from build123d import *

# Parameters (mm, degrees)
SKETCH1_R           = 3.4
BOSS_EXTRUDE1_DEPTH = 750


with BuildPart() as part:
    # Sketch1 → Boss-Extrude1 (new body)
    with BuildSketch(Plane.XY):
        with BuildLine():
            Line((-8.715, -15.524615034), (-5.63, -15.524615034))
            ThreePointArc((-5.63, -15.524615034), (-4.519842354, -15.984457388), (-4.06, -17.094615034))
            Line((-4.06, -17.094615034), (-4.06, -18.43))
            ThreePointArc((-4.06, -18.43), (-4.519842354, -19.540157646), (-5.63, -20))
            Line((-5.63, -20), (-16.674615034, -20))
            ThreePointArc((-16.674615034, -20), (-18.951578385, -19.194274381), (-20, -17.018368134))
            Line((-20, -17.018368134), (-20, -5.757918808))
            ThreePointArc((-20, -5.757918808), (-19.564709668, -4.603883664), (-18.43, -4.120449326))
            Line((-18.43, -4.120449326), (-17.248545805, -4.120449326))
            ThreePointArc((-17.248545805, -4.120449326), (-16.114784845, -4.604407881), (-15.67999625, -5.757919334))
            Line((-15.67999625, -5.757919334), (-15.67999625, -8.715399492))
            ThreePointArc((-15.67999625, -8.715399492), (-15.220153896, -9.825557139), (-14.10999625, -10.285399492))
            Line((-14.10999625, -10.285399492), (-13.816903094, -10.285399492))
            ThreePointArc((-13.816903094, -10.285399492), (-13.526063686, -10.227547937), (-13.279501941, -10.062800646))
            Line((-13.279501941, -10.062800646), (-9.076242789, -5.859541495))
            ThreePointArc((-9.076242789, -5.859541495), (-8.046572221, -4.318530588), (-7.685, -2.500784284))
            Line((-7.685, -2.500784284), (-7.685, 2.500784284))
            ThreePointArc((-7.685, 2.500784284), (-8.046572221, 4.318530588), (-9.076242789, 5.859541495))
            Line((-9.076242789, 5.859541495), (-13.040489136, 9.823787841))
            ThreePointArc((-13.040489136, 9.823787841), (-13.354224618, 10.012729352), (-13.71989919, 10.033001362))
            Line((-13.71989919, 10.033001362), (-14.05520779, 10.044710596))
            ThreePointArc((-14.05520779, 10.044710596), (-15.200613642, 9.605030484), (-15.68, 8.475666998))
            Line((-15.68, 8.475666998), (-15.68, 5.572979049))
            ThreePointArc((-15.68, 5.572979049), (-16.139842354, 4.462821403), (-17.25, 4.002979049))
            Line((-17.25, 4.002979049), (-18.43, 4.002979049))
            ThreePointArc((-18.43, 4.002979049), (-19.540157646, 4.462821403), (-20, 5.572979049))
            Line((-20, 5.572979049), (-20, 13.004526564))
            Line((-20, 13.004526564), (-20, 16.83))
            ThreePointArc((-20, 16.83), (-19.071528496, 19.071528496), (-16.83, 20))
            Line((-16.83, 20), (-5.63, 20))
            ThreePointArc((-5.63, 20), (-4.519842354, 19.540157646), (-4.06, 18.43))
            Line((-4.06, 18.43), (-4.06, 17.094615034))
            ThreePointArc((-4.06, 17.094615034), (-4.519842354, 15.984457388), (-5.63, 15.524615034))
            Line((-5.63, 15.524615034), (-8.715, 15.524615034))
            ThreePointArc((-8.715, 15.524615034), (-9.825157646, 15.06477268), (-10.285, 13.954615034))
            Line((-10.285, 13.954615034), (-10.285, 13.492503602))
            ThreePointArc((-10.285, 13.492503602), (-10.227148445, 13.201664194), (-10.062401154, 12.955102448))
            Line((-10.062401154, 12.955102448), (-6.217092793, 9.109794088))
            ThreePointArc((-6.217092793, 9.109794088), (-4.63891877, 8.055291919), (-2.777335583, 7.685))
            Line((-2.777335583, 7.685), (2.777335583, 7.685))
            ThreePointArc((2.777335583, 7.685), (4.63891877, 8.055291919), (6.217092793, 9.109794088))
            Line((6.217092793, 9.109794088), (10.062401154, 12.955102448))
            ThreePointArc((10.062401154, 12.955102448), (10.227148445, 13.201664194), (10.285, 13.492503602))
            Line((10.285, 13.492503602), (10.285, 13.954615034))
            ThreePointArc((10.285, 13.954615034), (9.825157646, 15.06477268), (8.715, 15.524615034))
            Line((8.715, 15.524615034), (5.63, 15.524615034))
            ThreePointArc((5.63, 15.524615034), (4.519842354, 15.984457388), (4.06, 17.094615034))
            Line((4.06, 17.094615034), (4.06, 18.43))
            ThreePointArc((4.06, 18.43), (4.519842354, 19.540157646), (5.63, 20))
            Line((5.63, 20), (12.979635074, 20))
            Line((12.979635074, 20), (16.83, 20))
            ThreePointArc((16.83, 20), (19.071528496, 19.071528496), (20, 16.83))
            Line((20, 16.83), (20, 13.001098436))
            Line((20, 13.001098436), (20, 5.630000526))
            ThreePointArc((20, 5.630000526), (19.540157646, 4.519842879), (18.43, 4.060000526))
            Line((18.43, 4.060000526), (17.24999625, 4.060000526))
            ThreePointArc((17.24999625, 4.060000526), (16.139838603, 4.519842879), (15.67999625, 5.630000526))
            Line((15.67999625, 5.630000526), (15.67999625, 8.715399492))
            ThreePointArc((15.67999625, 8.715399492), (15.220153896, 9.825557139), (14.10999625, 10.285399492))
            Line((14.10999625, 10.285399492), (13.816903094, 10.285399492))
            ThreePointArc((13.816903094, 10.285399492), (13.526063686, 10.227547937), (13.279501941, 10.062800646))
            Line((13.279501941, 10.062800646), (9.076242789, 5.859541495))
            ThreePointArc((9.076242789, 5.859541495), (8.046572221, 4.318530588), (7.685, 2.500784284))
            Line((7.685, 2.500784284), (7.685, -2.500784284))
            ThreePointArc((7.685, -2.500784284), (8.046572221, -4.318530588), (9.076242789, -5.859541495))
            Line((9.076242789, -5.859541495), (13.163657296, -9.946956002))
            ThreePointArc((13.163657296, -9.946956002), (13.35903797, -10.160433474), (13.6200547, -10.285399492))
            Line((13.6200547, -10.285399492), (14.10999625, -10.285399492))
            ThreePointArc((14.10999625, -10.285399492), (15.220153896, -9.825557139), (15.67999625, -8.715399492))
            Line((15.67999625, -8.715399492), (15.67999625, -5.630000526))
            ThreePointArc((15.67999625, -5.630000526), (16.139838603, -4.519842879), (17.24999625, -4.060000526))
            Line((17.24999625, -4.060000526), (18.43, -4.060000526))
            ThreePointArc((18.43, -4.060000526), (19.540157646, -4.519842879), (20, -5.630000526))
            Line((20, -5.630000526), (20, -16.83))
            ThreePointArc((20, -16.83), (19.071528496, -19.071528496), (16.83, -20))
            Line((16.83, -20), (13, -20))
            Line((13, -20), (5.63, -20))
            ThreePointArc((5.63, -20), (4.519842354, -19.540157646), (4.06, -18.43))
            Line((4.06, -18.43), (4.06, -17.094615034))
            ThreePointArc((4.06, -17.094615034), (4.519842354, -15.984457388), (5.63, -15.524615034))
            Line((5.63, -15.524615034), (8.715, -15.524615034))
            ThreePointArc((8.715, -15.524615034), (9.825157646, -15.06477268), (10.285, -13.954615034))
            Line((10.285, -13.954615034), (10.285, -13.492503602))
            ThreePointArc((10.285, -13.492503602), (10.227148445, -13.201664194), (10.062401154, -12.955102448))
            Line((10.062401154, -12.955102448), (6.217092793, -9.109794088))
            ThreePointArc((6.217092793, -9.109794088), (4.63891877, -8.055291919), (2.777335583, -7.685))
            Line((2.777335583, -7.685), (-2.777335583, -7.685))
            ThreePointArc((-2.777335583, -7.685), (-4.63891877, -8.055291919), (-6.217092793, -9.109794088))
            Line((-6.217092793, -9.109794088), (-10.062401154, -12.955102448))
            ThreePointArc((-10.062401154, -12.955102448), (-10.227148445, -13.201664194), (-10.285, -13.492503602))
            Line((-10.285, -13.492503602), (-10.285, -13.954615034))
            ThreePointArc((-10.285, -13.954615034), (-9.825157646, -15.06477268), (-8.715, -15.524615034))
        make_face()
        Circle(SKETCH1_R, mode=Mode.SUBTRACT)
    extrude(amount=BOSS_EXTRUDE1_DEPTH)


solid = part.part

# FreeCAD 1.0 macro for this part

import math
import FreeCAD as App
import Part
import Sketcher

V = App.Vector
Q = App.Units.Quantity

doc = App.newDocument("Part")
body = doc.addObject("PartDesign::Body", "Body")

# Sketch on XY plane
sketch1 = doc.addObject("Sketcher::SketchObject", "Sketch")
body.addObject(sketch1)
sketch1.AttachmentSupport = (doc.XY_Plane, [""])
sketch1.MapMode = "FlatFace"
sketch1.addGeometry([
    Part.LineSegment(V(-5.63, -15.52, 0), V(-8.71, -15.52, 0)),  # 0
    Part.ArcOfCircle(Part.Circle(V(-8.71, -13.95, 0), V(0, 0, 1), 1.57), math.radians(-180), math.radians(-90)),  # 1
    Part.LineSegment(V(-10.29, -13.95, 0), V(-10.29, -13.49, 0)),  # 2
    Part.ArcOfCircle(Part.Circle(V(-9.52, -13.49, 0), V(0, 0, 1), 0.76), math.radians(135), math.radians(180)),  # 3
    Part.LineSegment(V(-10.06, -12.96, 0), V(-6.22, -9.11, 0)),  # 4
    Part.ArcOfCircle(Part.Circle(V(-2.78, -12.55, 0), V(0, 0, 1), 4.86), math.radians(90), math.radians(135)),  # 5
    Part.LineSegment(V(-2.78, -7.68, 0), V(2.78, -7.68, 0)),  # 6
    Part.ArcOfCircle(Part.Circle(V(2.78, -12.55, 0), V(0, 0, 1), 4.86), math.radians(45), math.radians(90)),  # 7
    Part.LineSegment(V(6.22, -9.11, 0), V(10.06, -12.96, 0)),  # 8
    Part.ArcOfCircle(Part.Circle(V(9.52, -13.49, 0), V(0, 0, 1), 0.76), math.radians(0), math.radians(45)),  # 9
    Part.LineSegment(V(10.29, -13.49, 0), V(10.29, -13.95, 0)),  # 10
    Part.ArcOfCircle(Part.Circle(V(8.71, -13.95, 0), V(0, 0, 1), 1.57), math.radians(-90), math.radians(0)),  # 11
    Part.LineSegment(V(8.71, -15.52, 0), V(5.63, -15.52, 0)),  # 12
    Part.ArcOfCircle(Part.Circle(V(5.63, -17.09, 0), V(0, 0, 1), 1.57), math.radians(90), math.radians(180)),  # 13
    Part.LineSegment(V(4.06, -17.09, 0), V(4.06, -18.43, 0)),  # 14
    Part.ArcOfCircle(Part.Circle(V(5.63, -18.43, 0), V(0, 0, 1), 1.57), math.radians(-180), math.radians(-90)),  # 15
    Part.LineSegment(V(5.63, -20, 0), V(16.83, -20, 0)),  # 16
    Part.ArcOfCircle(Part.Circle(V(16.83, -16.83, 0), V(0, 0, 1), 3.17), math.radians(-90), math.radians(0)),  # 17
    Part.LineSegment(V(20, -16.83, 0), V(20, -5.63, 0)),  # 18
    Part.ArcOfCircle(Part.Circle(V(18.43, -5.63, 0), V(0, 0, 1), 1.57), math.radians(0), math.radians(90)),  # 19
    Part.LineSegment(V(18.43, -4.06, 0), V(17.25, -4.06, 0)),  # 20
    Part.ArcOfCircle(Part.Circle(V(17.25, -5.63, 0), V(0, 0, 1), 1.57), math.radians(90), math.radians(180)),  # 21
    Part.LineSegment(V(15.68, -5.63, 0), V(15.68, -8.72, 0)),  # 22
    Part.ArcOfCircle(Part.Circle(V(14.11, -8.72, 0), V(0, 0, 1), 1.57), math.radians(-90), math.radians(0)),  # 23
    Part.LineSegment(V(14.11, -10.29, 0), V(13.62, -10.29, 0)),  # 24
    Part.ArcOfCircle(Part.Circle(V(13.81, -9.55, 0), V(0, 0, 1), 0.76), math.radians(-149), math.radians(-105)),  # 25
    Part.LineSegment(V(13.16, -9.95, 0), V(9.08, -5.86, 0)),  # 26
    Part.ArcOfCircle(Part.Circle(V(12.44, -2.5, 0), V(0, 0, 1), 4.75), math.radians(-180), math.radians(-135)),  # 27
    Part.LineSegment(V(7.68, -2.5, 0), V(7.68, 2.5, 0)),  # 28
    Part.ArcOfCircle(Part.Circle(V(12.44, 2.5, 0), V(0, 0, 1), 4.75), math.radians(135), math.radians(180)),  # 29
    Part.LineSegment(V(9.08, 5.86, 0), V(13.28, 10.06, 0)),  # 30
    Part.ArcOfCircle(Part.Circle(V(13.82, 9.53, 0), V(0, 0, 1), 0.76), math.radians(90), math.radians(135)),  # 31
    Part.LineSegment(V(13.82, 10.29, 0), V(14.11, 10.29, 0)),  # 32
    Part.ArcOfCircle(Part.Circle(V(14.11, 8.72, 0), V(0, 0, 1), 1.57), math.radians(0), math.radians(90)),  # 33
    Part.LineSegment(V(15.68, 8.72, 0), V(15.68, 5.63, 0)),  # 34
    Part.ArcOfCircle(Part.Circle(V(17.25, 5.63, 0), V(0, 0, 1), 1.57), math.radians(180), math.radians(270)),  # 35
    Part.LineSegment(V(17.25, 4.06, 0), V(18.43, 4.06, 0)),  # 36
    Part.ArcOfCircle(Part.Circle(V(18.43, 5.63, 0), V(0, 0, 1), 1.57), math.radians(-90), math.radians(0)),  # 37
    Part.LineSegment(V(20, 5.63, 0), V(20, 16.83, 0)),  # 38
    Part.ArcOfCircle(Part.Circle(V(16.83, 16.83, 0), V(0, 0, 1), 3.17), math.radians(0), math.radians(90)),  # 39
    Part.LineSegment(V(16.83, 20, 0), V(5.63, 20, 0)),  # 40
    Part.ArcOfCircle(Part.Circle(V(5.63, 18.43, 0), V(0, 0, 1), 1.57), math.radians(90), math.radians(180)),  # 41
    Part.LineSegment(V(4.06, 18.43, 0), V(4.06, 17.09, 0)),  # 42
    Part.ArcOfCircle(Part.Circle(V(5.63, 17.09, 0), V(0, 0, 1), 1.57), math.radians(-180), math.radians(-90)),  # 43
    Part.LineSegment(V(5.63, 15.52, 0), V(8.71, 15.52, 0)),  # 44
    Part.ArcOfCircle(Part.Circle(V(8.71, 13.95, 0), V(0, 0, 1), 1.57), math.radians(0), math.radians(90)),  # 45
    Part.LineSegment(V(10.29, 13.95, 0), V(10.29, 13.49, 0)),  # 46
    Part.ArcOfCircle(Part.Circle(V(9.52, 13.49, 0), V(0, 0, 1), 0.76), math.radians(-45), math.radians(0)),  # 47
    Part.LineSegment(V(10.06, 12.96, 0), V(6.22, 9.11, 0)),  # 48
    Part.ArcOfCircle(Part.Circle(V(2.78, 12.55, 0), V(0, 0, 1), 4.86), math.radians(-90), math.radians(-45)),  # 49
    Part.LineSegment(V(2.78, 7.68, 0), V(-2.78, 7.68, 0)),  # 50
    Part.ArcOfCircle(Part.Circle(V(-2.78, 12.55, 0), V(0, 0, 1), 4.86), math.radians(-135), math.radians(-90)),  # 51
    Part.LineSegment(V(-6.22, 9.11, 0), V(-10.06, 12.96, 0)),  # 52
    Part.ArcOfCircle(Part.Circle(V(-9.52, 13.49, 0), V(0, 0, 1), 0.76), math.radians(180), math.radians(225)),  # 53
    Part.LineSegment(V(-10.29, 13.49, 0), V(-10.29, 13.95, 0)),  # 54
    Part.ArcOfCircle(Part.Circle(V(-8.71, 13.95, 0), V(0, 0, 1), 1.57), math.radians(90), math.radians(180)),  # 55
    Part.LineSegment(V(-8.71, 15.52, 0), V(-5.63, 15.52, 0)),  # 56
    Part.ArcOfCircle(Part.Circle(V(-5.63, 17.09, 0), V(0, 0, 1), 1.57), math.radians(-90), math.radians(0)),  # 57
    Part.LineSegment(V(-4.06, 17.09, 0), V(-4.06, 18.43, 0)),  # 58
    Part.ArcOfCircle(Part.Circle(V(-5.63, 18.43, 0), V(0, 0, 1), 1.57), math.radians(0), math.radians(90)),  # 59
    Part.LineSegment(V(-5.63, 20, 0), V(-16.83, 20, 0)),  # 60
    Part.ArcOfCircle(Part.Circle(V(-16.83, 16.83, 0), V(0, 0, 1), 3.17), math.radians(90), math.radians(180)),  # 61
    Part.LineSegment(V(-20, 16.83, 0), V(-20, 5.57, 0)),  # 62
    Part.ArcOfCircle(Part.Circle(V(-18.43, 5.57, 0), V(0, 0, 1), 1.57), math.radians(-180), math.radians(-90)),  # 63
    Part.LineSegment(V(-18.43, 4, 0), V(-17.25, 4, 0)),  # 64
    Part.ArcOfCircle(Part.Circle(V(-17.25, 5.57, 0), V(0, 0, 1), 1.57), math.radians(-90), math.radians(0)),  # 65
    Part.LineSegment(V(-15.68, 5.57, 0), V(-15.68, 8.48, 0)),  # 66
    Part.ArcOfCircle(Part.Circle(V(-14.11, 8.48, 0), V(0, 0, 1), 1.57), math.radians(88), math.radians(180)),  # 67
    Part.LineSegment(V(-14.06, 10.04, 0), V(-13.72, 10.03, 0)),  # 68
    Part.ArcOfCircle(Part.Circle(V(-13.58, 9.29, 0), V(0, 0, 1), 0.76), math.radians(45), math.radians(101)),  # 69
    Part.LineSegment(V(-13.04, 9.82, 0), V(-9.08, 5.86, 0)),  # 70
    Part.ArcOfCircle(Part.Circle(V(-12.44, 2.5, 0), V(0, 0, 1), 4.75), math.radians(0), math.radians(45)),  # 71
    Part.LineSegment(V(-7.68, 2.5, 0), V(-7.68, -2.5, 0)),  # 72
    Part.ArcOfCircle(Part.Circle(V(-12.44, -2.5, 0), V(0, 0, 1), 4.75), math.radians(-45), math.radians(0)),  # 73
    Part.LineSegment(V(-9.08, -5.86, 0), V(-13.28, -10.06, 0)),  # 74
    Part.ArcOfCircle(Part.Circle(V(-13.82, -9.53, 0), V(0, 0, 1), 0.76), math.radians(-90), math.radians(-45)),  # 75
    Part.LineSegment(V(-13.82, -10.29, 0), V(-14.11, -10.29, 0)),  # 76
    Part.ArcOfCircle(Part.Circle(V(-14.11, -8.72, 0), V(0, 0, 1), 1.57), math.radians(180), math.radians(270)),  # 77
    Part.LineSegment(V(-15.68, -8.72, 0), V(-15.68, -5.76, 0)),  # 78
    Part.ArcOfCircle(Part.Circle(V(-17.25, -5.69, 0), V(0, 0, 1), 1.57), math.radians(-2), math.radians(90)),  # 79
    Part.LineSegment(V(-17.25, -4.12, 0), V(-18.43, -4.12, 0)),  # 80
    Part.ArcOfCircle(Part.Circle(V(-18.43, -5.69, 0), V(0, 0, 1), 1.57), math.radians(90), math.radians(182)),  # 81
    Part.LineSegment(V(-20, -5.76, 0), V(-20, -17.02, 0)),  # 82
    Part.ArcOfCircle(Part.Circle(V(-16.84, -16.83, 0), V(0, 0, 1), 3.17), math.radians(-177), math.radians(-87)),  # 83
    Part.LineSegment(V(-16.67, -20, 0), V(-5.63, -20, 0)),  # 84
    Part.ArcOfCircle(Part.Circle(V(-5.63, -18.43, 0), V(0, 0, 1), 1.57), math.radians(-90), math.radians(0)),  # 85
    Part.LineSegment(V(-4.06, -18.43, 0), V(-4.06, -17.09, 0)),  # 86
    Part.ArcOfCircle(Part.Circle(V(-5.63, -17.09, 0), V(0, 0, 1), 1.57), math.radians(0), math.radians(90)),  # 87
    Part.Circle(V(0, 0, 0), V(0, 0, 1), 3.4),  # 88
], False)
sketch1.addConstraint([
    Sketcher.Constraint("Tangent", 0, 2, 1, 2),
    Sketcher.Constraint("Tangent", 1, 1, 2, 1),
    Sketcher.Constraint("Tangent", 2, 2, 3, 2),
    Sketcher.Constraint("Tangent", 3, 1, 4, 1),
    Sketcher.Constraint("Tangent", 4, 2, 5, 2),
    Sketcher.Constraint("Tangent", 5, 1, 6, 1),
    Sketcher.Constraint("Tangent", 6, 2, 7, 2),
    Sketcher.Constraint("Tangent", 7, 1, 8, 1),
    Sketcher.Constraint("Tangent", 8, 2, 9, 2),
    Sketcher.Constraint("Tangent", 9, 1, 10, 1),
    Sketcher.Constraint("Tangent", 10, 2, 11, 2),
    Sketcher.Constraint("Tangent", 11, 1, 12, 1),
    Sketcher.Constraint("Tangent", 12, 2, 13, 1),
    Sketcher.Constraint("Tangent", 13, 2, 14, 1),
    Sketcher.Constraint("Tangent", 14, 2, 15, 1),
    Sketcher.Constraint("Tangent", 15, 2, 16, 1),
    Sketcher.Constraint("Tangent", 16, 2, 17, 1),
    Sketcher.Constraint("Tangent", 17, 2, 18, 1),
    Sketcher.Constraint("Tangent", 18, 2, 19, 1),
    Sketcher.Constraint("Tangent", 19, 2, 20, 1),
    Sketcher.Constraint("Tangent", 20, 2, 21, 1),
    Sketcher.Constraint("Tangent", 21, 2, 22, 1),
    Sketcher.Constraint("Tangent", 22, 2, 23, 2),
    Sketcher.Constraint("Tangent", 23, 1, 24, 1),
    Sketcher.Constraint("Coincident", 24, 2, 25, 2),
    Sketcher.Constraint("Coincident", 25, 1, 26, 1),
    Sketcher.Constraint("Tangent", 26, 2, 27, 2),
    Sketcher.Constraint("Tangent", 27, 1, 28, 1),
    Sketcher.Constraint("Tangent", 28, 2, 29, 2),
    Sketcher.Constraint("Tangent", 29, 1, 30, 1),
    Sketcher.Constraint("Tangent", 30, 2, 31, 2),
    Sketcher.Constraint("Tangent", 31, 1, 32, 1),
    Sketcher.Constraint("Tangent", 32, 2, 33, 2),
    Sketcher.Constraint("Tangent", 33, 1, 34, 1),
    Sketcher.Constraint("Tangent", 34, 2, 35, 1),
    Sketcher.Constraint("Tangent", 35, 2, 36, 1),
    Sketcher.Constraint("Tangent", 36, 2, 37, 1),
    Sketcher.Constraint("Tangent", 37, 2, 38, 1),
    Sketcher.Constraint("Tangent", 38, 2, 39, 1),
    Sketcher.Constraint("Tangent", 39, 2, 40, 1),
    Sketcher.Constraint("Tangent", 40, 2, 41, 1),
    Sketcher.Constraint("Tangent", 41, 2, 42, 1),
    Sketcher.Constraint("Tangent", 42, 2, 43, 1),
    Sketcher.Constraint("Tangent", 43, 2, 44, 1),
    Sketcher.Constraint("Tangent", 44, 2, 45, 2),
    Sketcher.Constraint("Tangent", 45, 1, 46, 1),
    Sketcher.Constraint("Tangent", 46, 2, 47, 2),
    Sketcher.Constraint("Tangent", 47, 1, 48, 1),
    Sketcher.Constraint("Tangent", 48, 2, 49, 2),
    Sketcher.Constraint("Tangent", 49, 1, 50, 1),
    Sketcher.Constraint("Tangent", 50, 2, 51, 2),
    Sketcher.Constraint("Tangent", 51, 1, 52, 1),
    Sketcher.Constraint("Tangent", 52, 2, 53, 2),
    Sketcher.Constraint("Tangent", 53, 1, 54, 1),
    Sketcher.Constraint("Tangent", 54, 2, 55, 2),
    Sketcher.Constraint("Tangent", 55, 1, 56, 1),
    Sketcher.Constraint("Tangent", 56, 2, 57, 1),
    Sketcher.Constraint("Tangent", 57, 2, 58, 1),
    Sketcher.Constraint("Tangent", 58, 2, 59, 1),
    Sketcher.Constraint("Tangent", 59, 2, 60, 1),
    Sketcher.Constraint("Tangent", 60, 2, 61, 1),
    Sketcher.Constraint("Tangent", 61, 2, 62, 1),
    Sketcher.Constraint("Tangent", 62, 2, 63, 1),
    Sketcher.Constraint("Tangent", 63, 2, 64, 1),
    Sketcher.Constraint("Tangent", 64, 2, 65, 1),
    Sketcher.Constraint("Tangent", 65, 2, 66, 1),
    Sketcher.Constraint("Tangent", 66, 2, 67, 2),
    Sketcher.Constraint("Tangent", 67, 1, 68, 1),
    Sketcher.Constraint("Coincident", 68, 2, 69, 2),
    Sketcher.Constraint("Tangent", 69, 1, 70, 1),
    Sketcher.Constraint("Tangent", 70, 2, 71, 2),
    Sketcher.Constraint("Tangent", 71, 1, 72, 1),
    Sketcher.Constraint("Tangent", 72, 2, 73, 2),
    Sketcher.Constraint("Tangent", 73, 1, 74, 1),
    Sketcher.Constraint("Tangent", 74, 2, 75, 2),
    Sketcher.Constraint("Tangent", 75, 1, 76, 1),
    Sketcher.Constraint("Tangent", 76, 2, 77, 2),
    Sketcher.Constraint("Tangent", 77, 1, 78, 1),
    Sketcher.Constraint("Coincident", 78, 2, 79, 1),
    Sketcher.Constraint("Tangent", 79, 2, 80, 1),
    Sketcher.Constraint("Coincident", 80, 2, 81, 1),
    Sketcher.Constraint("Coincident", 81, 2, 82, 1),
    Sketcher.Constraint("Coincident", 82, 2, 83, 1),
    Sketcher.Constraint("Coincident", 83, 2, 84, 1),
    Sketcher.Constraint("Tangent", 84, 2, 85, 1),
    Sketcher.Constraint("Tangent", 85, 2, 86, 1),
    Sketcher.Constraint("Tangent", 86, 2, 87, 1),
    Sketcher.Constraint("Tangent", 87, 2, 0, 1),
    Sketcher.Constraint("Horizontal", 0),
    Sketcher.Constraint("Vertical", 2),
    Sketcher.Constraint("Horizontal", 6),
    Sketcher.Constraint("Vertical", 10),
    Sketcher.Constraint("Horizontal", 12),
    Sketcher.Constraint("Vertical", 14),
    Sketcher.Constraint("Horizontal", 16),
    Sketcher.Constraint("Vertical", 18),
    Sketcher.Constraint("Horizontal", 20),
    Sketcher.Constraint("Vertical", 22),
    Sketcher.Constraint("Horizontal", 24),
    Sketcher.Constraint("Vertical", 28),
    Sketcher.Constraint("Horizontal", 32),
    Sketcher.Constraint("Vertical", 34),
    Sketcher.Constraint("Horizontal", 36),
    Sketcher.Constraint("Vertical", 38),
    Sketcher.Constraint("Horizontal", 40),
    Sketcher.Constraint("Vertical", 42),
    Sketcher.Constraint("Horizontal", 44),
    Sketcher.Constraint("Vertical", 46),
    Sketcher.Constraint("Horizontal", 50),
    Sketcher.Constraint("Vertical", 54),
    Sketcher.Constraint("Horizontal", 56),
    Sketcher.Constraint("Vertical", 58),
    Sketcher.Constraint("Horizontal", 60),
    Sketcher.Constraint("Vertical", 62),
    Sketcher.Constraint("Horizontal", 64),
    Sketcher.Constraint("Vertical", 66),
    Sketcher.Constraint("Vertical", 72),
    Sketcher.Constraint("Horizontal", 76),
    Sketcher.Constraint("Vertical", 78),
    Sketcher.Constraint("Horizontal", 80),
    Sketcher.Constraint("Vertical", 82),
    Sketcher.Constraint("Horizontal", 84),
    Sketcher.Constraint("Vertical", 86),
    Sketcher.Constraint("Coincident", 88, 3, -1, 1),
    Sketcher.Constraint("Equal", 5, 7),
    Sketcher.Constraint("Equal", 3, 9),
    Sketcher.Constraint("Equal", 1, 11),
    Sketcher.Constraint("Equal", 11, 13),
    Sketcher.Constraint("Equal", 13, 15),
    Sketcher.Constraint("Equal", 15, 19),
    Sketcher.Constraint("Equal", 19, 21),
    Sketcher.Constraint("Equal", 21, 23),
    Sketcher.Constraint("Equal", 9, 25),
    Sketcher.Constraint("Equal", 27, 29),
    Sketcher.Constraint("Equal", 25, 31),
    Sketcher.Constraint("Equal", 23, 33),
    Sketcher.Constraint("Equal", 33, 35),
    Sketcher.Constraint("Equal", 35, 37),
    Sketcher.Constraint("Equal", 17, 39),
    Sketcher.Constraint("Equal", 37, 41),
    Sketcher.Constraint("Equal", 41, 43),
    Sketcher.Constraint("Equal", 43, 45),
    Sketcher.Constraint("Equal", 31, 47),
    Sketcher.Constraint("Equal", 7, 49),
    Sketcher.Constraint("Equal", 49, 51),
    Sketcher.Constraint("Equal", 47, 53),
    Sketcher.Constraint("Equal", 45, 55),
    Sketcher.Constraint("Equal", 55, 57),
    Sketcher.Constraint("Equal", 57, 59),
    Sketcher.Constraint("Equal", 39, 61),
    Sketcher.Constraint("Equal", 59, 63),
    Sketcher.Constraint("Equal", 63, 65),
    Sketcher.Constraint("Equal", 65, 67),
    Sketcher.Constraint("Equal", 53, 69),
    Sketcher.Constraint("Equal", 29, 71),
    Sketcher.Constraint("Equal", 71, 73),
    Sketcher.Constraint("Equal", 69, 75),
    Sketcher.Constraint("Equal", 67, 77),
    Sketcher.Constraint("Equal", 77, 79),
    Sketcher.Constraint("Equal", 79, 81),
    Sketcher.Constraint("Equal", 61, 83),
    Sketcher.Constraint("Equal", 81, 85),
    Sketcher.Constraint("Equal", 85, 87),
    Sketcher.Constraint("Symmetric", 1, 3, 45, 3, -1, 1),
    Sketcher.Constraint("Symmetric", 5, 3, 49, 3, -1, 1),
    Sketcher.Constraint("Symmetric", 9, 3, 53, 3, -1, 1),
    Sketcher.Constraint("Symmetric", 13, 3, 57, 3, -1, 1),
    Sketcher.Constraint("Symmetric", 17, 3, 61, 3, -1, 1),
    Sketcher.Constraint("Symmetric", 27, 3, 71, 3, -1, 1),
    Sketcher.Constraint("Symmetric", 31, 3, 75, 3, -1, 1),
    Sketcher.Constraint("Symmetric", 41, 3, 85, 3, -1, 1),
    Sketcher.Constraint("Symmetric", 3, 3, 9, 3, -2),
    Sketcher.Constraint("Symmetric", 43, 3, 57, 3, -2),
    Sketcher.Constraint("Symmetric", 39, 3, 61, 3, -2),
    Sketcher.Constraint("Symmetric", 23, 3, 77, 3, -2),
    Sketcher.Constraint("Symmetric", 48, 2, 51, 1, -2),
    Sketcher.Constraint("Symmetric", 29, 1, 70, 2, -2),
    Sketcher.Constraint("Symmetric", 26, 2, 73, 1, -2),
    Sketcher.Constraint("Symmetric", 21, 3, 35, 3, -1),
    Sketcher.Constraint("Perpendicular", 4, 8),
    Sketcher.Constraint("Parallel", 8, 26),
    Sketcher.Constraint("Perpendicular", 26, 30),
    Sketcher.Constraint("Horizontal", 78, 2, 81, 2),
    Sketcher.Constraint("Vertical", 63, 2, 80, 2),
    Sketcher.Constraint("Vertical", 62, 2, 81, 2),
    Sketcher.Constraint("Equal", 60, 18),
    Sketcher.Constraint("Diameter", 88, 6.8),
    Sketcher.Constraint("Angle", 68, Q("-2 deg")),
    Sketcher.Constraint("Radius", 1, 1.57),
    Sketcher.Constraint("Radius", 3, 0.76),
    Sketcher.Constraint("Radius", 17, 3.17),
    Sketcher.Constraint("Radius", 27, 4.75),
    Sketcher.Constraint("DistanceX", 16, 1, 16, 2, 11.2),
    Sketcher.Constraint("DistanceY", 15, 2, -1, 1, 20.0),
    Sketcher.Constraint("DistanceX", -1, 1, 17, 2, 20.0),
    Sketcher.Constraint("DistanceX", 64, 1, 64, 2, 1.18),
    Sketcher.Constraint("DistanceX", 0, 2, 0, 1, 3.085),
    Sketcher.Constraint("Radius", 5, 4.864551),
    Sketcher.Constraint("DistanceY", 22, 2, 22, 1, 3.085399),
    Sketcher.Constraint("DistanceX", -1, 1, 27, 3, 12.435),
    Sketcher.Constraint("DistanceY", 5, 1, -1, 1, 7.685),
    Sketcher.Constraint("DistanceY", -1, 1, 68, 2, 10.033001),
    Sketcher.Constraint("DistanceX", 6, 1, 6, 2, 5.554671),
    Sketcher.Constraint("DistanceX", 24, 2, 24, 1, 0.489942),
    Sketcher.Constraint("DistanceY", 2, 1, 2, 2, 0.462111),
    Sketcher.Constraint("DistanceY", 28, 1, 28, 2, 5.001569),
    Sketcher.Constraint("DistanceY", 62, 2, 62, 1, 11.257021),
    Sketcher.Constraint("DistanceY", 78, 1, 78, 2, 2.95748),
    Sketcher.Constraint("DistanceY", 82, 2, 82, 1, 11.260449),
    Sketcher.Constraint("DistanceX", 68, 2, -1, 1, 13.719899),
    Sketcher.Constraint("DistanceX", 20, 2, 20, 1, 1.180004),
    Sketcher.Constraint("DistanceX", 80, 2, 80, 1, 1.181454),
    Sketcher.Constraint("DistanceX", 84, 1, 84, 2, 11.044615),
    Sketcher.Constraint("DistanceX", -1, 1, 25, 3, 13.811732),
])
pad1 = doc.addObject("PartDesign::Pad", "Pad")
body.addObject(pad1)
pad1.Profile = sketch1
pad1.Length = 750

doc.recompute()
